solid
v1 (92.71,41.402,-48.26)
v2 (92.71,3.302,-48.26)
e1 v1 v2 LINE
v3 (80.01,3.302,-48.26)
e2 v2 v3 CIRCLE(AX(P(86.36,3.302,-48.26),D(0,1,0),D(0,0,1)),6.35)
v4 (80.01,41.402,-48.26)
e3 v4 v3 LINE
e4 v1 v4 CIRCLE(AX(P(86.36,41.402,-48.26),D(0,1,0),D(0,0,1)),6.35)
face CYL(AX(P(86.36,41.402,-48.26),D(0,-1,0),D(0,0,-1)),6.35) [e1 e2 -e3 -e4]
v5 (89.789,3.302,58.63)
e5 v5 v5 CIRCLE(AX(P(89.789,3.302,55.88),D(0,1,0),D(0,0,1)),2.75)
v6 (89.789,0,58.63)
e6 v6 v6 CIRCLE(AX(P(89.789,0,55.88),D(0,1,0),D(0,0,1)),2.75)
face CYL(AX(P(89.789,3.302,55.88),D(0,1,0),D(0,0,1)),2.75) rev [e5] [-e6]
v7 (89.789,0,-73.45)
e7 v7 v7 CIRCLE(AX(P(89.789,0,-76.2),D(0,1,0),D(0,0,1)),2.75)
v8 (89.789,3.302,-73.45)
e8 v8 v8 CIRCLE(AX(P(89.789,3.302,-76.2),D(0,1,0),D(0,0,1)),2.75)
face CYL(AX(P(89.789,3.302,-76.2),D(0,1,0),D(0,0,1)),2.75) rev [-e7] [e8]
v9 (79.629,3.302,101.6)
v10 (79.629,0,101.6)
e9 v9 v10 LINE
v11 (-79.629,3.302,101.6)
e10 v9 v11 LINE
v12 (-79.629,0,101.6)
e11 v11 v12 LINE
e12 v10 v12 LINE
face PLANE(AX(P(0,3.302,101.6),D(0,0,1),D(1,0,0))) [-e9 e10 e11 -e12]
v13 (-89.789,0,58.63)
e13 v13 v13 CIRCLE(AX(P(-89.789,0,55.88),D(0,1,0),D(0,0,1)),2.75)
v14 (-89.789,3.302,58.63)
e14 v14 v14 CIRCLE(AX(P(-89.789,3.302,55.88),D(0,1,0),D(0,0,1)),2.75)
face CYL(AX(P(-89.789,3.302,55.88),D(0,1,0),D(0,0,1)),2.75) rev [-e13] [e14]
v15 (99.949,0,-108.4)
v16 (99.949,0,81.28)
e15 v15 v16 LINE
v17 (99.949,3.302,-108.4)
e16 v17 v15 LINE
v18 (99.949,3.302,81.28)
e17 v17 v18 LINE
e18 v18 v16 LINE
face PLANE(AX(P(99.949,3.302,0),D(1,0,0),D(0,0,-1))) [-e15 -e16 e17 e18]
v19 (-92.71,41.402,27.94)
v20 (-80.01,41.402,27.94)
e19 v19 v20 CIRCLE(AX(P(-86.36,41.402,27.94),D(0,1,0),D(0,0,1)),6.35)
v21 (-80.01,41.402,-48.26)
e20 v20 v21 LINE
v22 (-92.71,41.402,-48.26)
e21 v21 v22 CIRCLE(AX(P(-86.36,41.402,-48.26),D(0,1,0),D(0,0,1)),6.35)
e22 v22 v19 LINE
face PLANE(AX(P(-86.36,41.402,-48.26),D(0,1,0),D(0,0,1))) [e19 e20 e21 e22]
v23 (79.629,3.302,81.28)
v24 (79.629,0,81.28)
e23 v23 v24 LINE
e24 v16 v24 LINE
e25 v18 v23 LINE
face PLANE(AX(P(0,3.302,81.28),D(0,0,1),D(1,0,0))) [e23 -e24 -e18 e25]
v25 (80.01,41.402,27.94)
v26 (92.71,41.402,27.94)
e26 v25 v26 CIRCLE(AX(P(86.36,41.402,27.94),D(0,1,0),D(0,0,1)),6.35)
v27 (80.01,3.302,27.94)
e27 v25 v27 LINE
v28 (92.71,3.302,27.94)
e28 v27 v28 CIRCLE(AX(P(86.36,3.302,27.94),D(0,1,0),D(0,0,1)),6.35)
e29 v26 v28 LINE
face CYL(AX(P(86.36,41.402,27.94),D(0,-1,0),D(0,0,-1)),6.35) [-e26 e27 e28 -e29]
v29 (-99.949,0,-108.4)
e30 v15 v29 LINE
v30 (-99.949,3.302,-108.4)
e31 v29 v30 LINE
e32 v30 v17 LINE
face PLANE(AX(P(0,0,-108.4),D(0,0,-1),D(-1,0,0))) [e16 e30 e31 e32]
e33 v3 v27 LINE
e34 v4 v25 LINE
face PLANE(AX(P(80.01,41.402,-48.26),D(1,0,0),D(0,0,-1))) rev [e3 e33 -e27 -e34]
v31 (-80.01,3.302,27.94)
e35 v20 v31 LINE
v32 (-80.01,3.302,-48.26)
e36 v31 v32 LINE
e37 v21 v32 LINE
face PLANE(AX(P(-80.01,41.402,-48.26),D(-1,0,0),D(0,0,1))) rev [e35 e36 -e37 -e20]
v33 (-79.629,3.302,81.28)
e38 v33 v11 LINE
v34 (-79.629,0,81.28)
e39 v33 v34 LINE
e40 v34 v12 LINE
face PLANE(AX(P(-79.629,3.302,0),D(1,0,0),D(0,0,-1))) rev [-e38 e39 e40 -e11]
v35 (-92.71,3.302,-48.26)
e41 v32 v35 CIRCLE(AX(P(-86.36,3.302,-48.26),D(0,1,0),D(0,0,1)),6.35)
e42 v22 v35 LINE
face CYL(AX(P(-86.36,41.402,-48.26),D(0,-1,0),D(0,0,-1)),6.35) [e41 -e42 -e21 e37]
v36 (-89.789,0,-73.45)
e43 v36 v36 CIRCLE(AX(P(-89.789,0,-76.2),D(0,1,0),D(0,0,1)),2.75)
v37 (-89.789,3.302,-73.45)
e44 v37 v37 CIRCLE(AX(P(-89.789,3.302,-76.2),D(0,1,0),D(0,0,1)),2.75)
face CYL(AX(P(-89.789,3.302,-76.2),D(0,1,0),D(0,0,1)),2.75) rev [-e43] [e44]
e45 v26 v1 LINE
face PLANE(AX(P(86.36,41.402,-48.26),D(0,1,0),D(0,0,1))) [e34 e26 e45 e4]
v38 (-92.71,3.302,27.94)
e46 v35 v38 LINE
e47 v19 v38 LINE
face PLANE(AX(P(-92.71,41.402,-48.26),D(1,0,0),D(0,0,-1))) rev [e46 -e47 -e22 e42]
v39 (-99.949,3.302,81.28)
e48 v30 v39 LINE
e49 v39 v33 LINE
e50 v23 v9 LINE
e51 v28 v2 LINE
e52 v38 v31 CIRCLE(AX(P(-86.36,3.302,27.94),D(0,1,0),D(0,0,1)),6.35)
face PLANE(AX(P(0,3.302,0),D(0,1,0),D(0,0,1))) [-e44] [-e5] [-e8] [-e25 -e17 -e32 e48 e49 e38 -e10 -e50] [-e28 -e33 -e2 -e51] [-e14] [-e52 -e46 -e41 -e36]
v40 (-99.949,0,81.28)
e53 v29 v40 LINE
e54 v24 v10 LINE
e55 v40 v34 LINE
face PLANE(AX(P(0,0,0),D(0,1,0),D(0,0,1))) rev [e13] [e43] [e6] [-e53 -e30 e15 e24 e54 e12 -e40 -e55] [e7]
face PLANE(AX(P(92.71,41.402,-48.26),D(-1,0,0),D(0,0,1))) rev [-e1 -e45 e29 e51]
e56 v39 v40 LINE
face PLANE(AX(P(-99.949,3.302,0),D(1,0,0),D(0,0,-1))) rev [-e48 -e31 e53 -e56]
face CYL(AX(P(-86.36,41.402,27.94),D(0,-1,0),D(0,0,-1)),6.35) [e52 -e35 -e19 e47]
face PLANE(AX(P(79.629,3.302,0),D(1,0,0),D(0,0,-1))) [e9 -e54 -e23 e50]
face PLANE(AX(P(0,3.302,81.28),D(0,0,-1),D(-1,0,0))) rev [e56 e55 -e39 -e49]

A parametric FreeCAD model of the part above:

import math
import FreeCAD as App
import Part
import Sketcher
from FreeCAD import Vector
Q = App.Units.Quantity

doc = App.newDocument("Part")
params = doc.addObject("Spreadsheet::Sheet", "Params")
for row, (alias, value) in enumerate([
    ("sketch1_width", "0.8 in"),
    ("sketch1_height", "7.2 in"),
    ("sketch1_width2", "7.87 in"),
    ("pad1_length", "0.13 in"),
    ("sketch2_height", "3 in"),
    ("sketch2_radius", "0.25 in"),
    ("pad2_length", "1.5 in"),
    ("hole_diameter", "5.5 mm"),
    ("sketch4_width", "7.87 in"),
    ("sketch4_height", "0.13 in"),
    ("pad3_length", "1.62 mm"),
    ("sketch5_width", "7.87 in"),
    ("sketch5_height", "0.13 in"),
    ("pad4_length", "5.18 mm"),
], start=1):
    params.set(f"A{row}", alias)
    params.set(f"B{row}", "=" + value)
    params.setAlias(f"B{row}", alias)

body = doc.addObject("PartDesign::Body", "Body")

# Sketch on XZ plane
sketch1 = body.newObject("Sketcher::SketchObject", "Sketch")
sketch1.AttachmentSupport = (doc.getObject("XZ_Plane"), [""])
sketch1.MapMode = "FlatFace"
sketch1.addGeometry([
    Part.LineSegment(Vector(100, 81, 0), Vector(100, -102, 0)),  # 0
    Part.LineSegment(Vector(100, -102, 0), Vector(-100, -102, 0)),  # 1
    Part.LineSegment(Vector(-100, -102, 0), Vector(-100, 81, 0)),  # 2
    Part.LineSegment(Vector(-100, 81, 0), Vector(-80, 81, 0)),  # 3
    Part.LineSegment(Vector(-80, 81, 0), Vector(-80, 102, 0)),  # 4
    Part.LineSegment(Vector(-80, 102, 0), Vector(80, 102, 0)),  # 5
    Part.LineSegment(Vector(80, 102, 0), Vector(80, 81, 0)),  # 6
    Part.LineSegment(Vector(80, 81, 0), Vector(100, 81, 0)),  # 7
], False)
sketch1.addConstraint([
    Sketcher.Constraint("Coincident", 0, 2, 1, 1),
    Sketcher.Constraint("Coincident", 1, 2, 2, 1),
    Sketcher.Constraint("Coincident", 2, 2, 3, 1),
    Sketcher.Constraint("Coincident", 3, 2, 4, 1),
    Sketcher.Constraint("Coincident", 4, 2, 5, 1),
    Sketcher.Constraint("Coincident", 5, 2, 6, 1),
    Sketcher.Constraint("Coincident", 6, 2, 7, 1),
    Sketcher.Constraint("Coincident", 7, 2, 0, 1),
    Sketcher.Constraint("Vertical", 0),
    Sketcher.Constraint("Horizontal", 1),
    Sketcher.Constraint("Vertical", 2),
    Sketcher.Constraint("Horizontal", 3),
    Sketcher.Constraint("Vertical", 4),
    Sketcher.Constraint("Horizontal", 5),
    Sketcher.Constraint("Vertical", 6),
    Sketcher.Constraint("Horizontal", 7),
    Sketcher.Constraint("Symmetric", 3, 2, 6, 2, -2),
    Sketcher.Constraint("Equal", 3, 7),
    Sketcher.Constraint("Equal", 7, 4),
    Sketcher.Constraint("DistanceX", 3, 1, 3, 2, Q("0.8 in")),
    Sketcher.Constraint("DistanceY", 0, 2, 0, 1, Q("7.2 in")),
    Sketcher.Constraint("DistanceY", 0, 2, -1, 1, Q("4 in")),
    Sketcher.Constraint("DistanceX", 1, 2, 1, 1, Q("7.87 in")),
])
sketch1.setExpression("Constraints[19]", "Params.sketch1_width")
sketch1.setExpression("Constraints[20]", "Params.sketch1_height")
sketch1.setExpression("Constraints[22]", "Params.sketch1_width2")
pad1 = body.newObject("PartDesign::Pad", "Pad")
pad1.Profile = sketch1
pad1.setExpression("Length", "Params.pad1_length")
pad1.Reversed = True

# Sketch on XZ plane
sketch2 = body.newObject("Sketcher::SketchObject", "Sketch001")
sketch2.AttachmentSupport = (doc.getObject("XZ_Plane"), [""])
sketch2.MapMode = "FlatFace"
sketch2.AttachmentOffset = App.Placement(Vector(0, 0, -0.13 * 25.4), App.Rotation())
sketch2.addGeometry([
    Part.LineSegment(Vector(93, 28, 0), Vector(93, -48, 0)),  # 0
    Part.ArcOfCircle(Part.Circle(Vector(86, -48, 0), Vector(0, 0, 1), 6), math.radians(180), math.radians(360)),  # 1
    Part.LineSegment(Vector(80, -48, 0), Vector(80, 28, 0)),  # 2
    Part.ArcOfCircle(Part.Circle(Vector(86, 28, 0), Vector(0, 0, 1), 6), math.radians(0), math.radians(180)),  # 3
    Part.LineSegment(Vector(-80, 28, 0), Vector(-80, -48, 0)),  # 4
    Part.ArcOfCircle(Part.Circle(Vector(-86, -48, 0), Vector(0, 0, 1), 6), math.radians(180), math.radians(360)),  # 5
    Part.LineSegment(Vector(-93, -48, 0), Vector(-93, 28, 0)),  # 6
    Part.ArcOfCircle(Part.Circle(Vector(-86, 28, 0), Vector(0, 0, 1), 6), math.radians(0), math.radians(180)),  # 7
], False)
sketch2.addConstraint([
    Sketcher.Constraint("Tangent", 0, 2, 1, 2),
    Sketcher.Constraint("Tangent", 1, 1, 2, 1),
    Sketcher.Constraint("Tangent", 2, 2, 3, 2),
    Sketcher.Constraint("Tangent", 3, 1, 0, 1),
    Sketcher.Constraint("Tangent", 4, 2, 5, 2),
    Sketcher.Constraint("Tangent", 5, 1, 6, 1),
    Sketcher.Constraint("Tangent", 6, 2, 7, 2),
    Sketcher.Constraint("Tangent", 7, 1, 4, 1),
    Sketcher.Constraint("Vertical", 0),
    Sketcher.Constraint("Vertical", 2),
    Sketcher.Constraint("Vertical", 4),
    Sketcher.Constraint("Vertical", 6),
    Sketcher.Constraint("Equal", 3, 5),
    Sketcher.Constraint("Symmetric", 1, 3, 5, 3, -2),
    Sketcher.Constraint("Horizontal", 3, 3, 7, 3),
    Sketcher.Constraint("DistanceY", 0, 2, 0, 1, Q("3 in")),
    Sketcher.Constraint("Radius", 1, Q("0.25 in")),
    Sketcher.Constraint("DistanceX", -1, 1, 1, 3, Q("3.4 in")),
    Sketcher.Constraint("DistanceY", 1, 3, -1, 1, Q("1.9 in")),
])
sketch2.setExpression("Constraints[15]", "Params.sketch2_height")
sketch2.setExpression("Constraints[16]", "Params.sketch2_radius")
pad2 = body.newObject("PartDesign::Pad", "Pad001")
pad2.Profile = sketch2
pad2.setExpression("Length", "Params.pad2_length")
pad2.Reversed = True

# Sketch on XZ plane
sketch3 = body.newObject("Sketcher::SketchObject", "Sketch002")
sketch3.AttachmentSupport = (doc.getObject("XZ_Plane"), [""])
sketch3.MapMode = "FlatFace"
sketch3.AttachmentOffset = App.Placement(Vector(0, 0, -0.13 * 25.4), App.Rotation())
sketch3.addGeometry([
    Part.Circle(Vector(-89.8, 55.9, 0), Vector(0, 0, 1), 2.8),
    Part.Circle(Vector(-89.8, -76.2, 0), Vector(0, 0, 1), 2.8),
    Part.Circle(Vector(89.8, 55.9, 0), Vector(0, 0, 1), 2.8),
    Part.Circle(Vector(89.8, -76.2, 0), Vector(0, 0, 1), 2.8),
], False)
sketch3.addConstraint([
    Sketcher.Constraint("Equal", 0, 1),
    Sketcher.Constraint("Equal", 1, 2),
    Sketcher.Constraint("Equal", 2, 3),
    Sketcher.Constraint("Symmetric", 0, 3, 2, 3, -2),
    Sketcher.Constraint("Symmetric", 1, 3, 3, 3, -2),
    Sketcher.Constraint("Vertical", 0, 3, 1, 3),
    Sketcher.Constraint("DistanceY", 1, 3, -1, 1, Q("3 in")),
    Sketcher.Constraint("DistanceY", -1, 1, 0, 3, Q("2.2 in")),
    Sketcher.Constraint("Diameter", 0, 5.5),
    Sketcher.Constraint("DistanceX", 0, 3, 2, 3, Q("7.07 in")),
])
doc.recompute()
hole = body.newObject("PartDesign::Hole", "Hole")
hole.Profile = sketch3
hole.ThreadType = "None"
hole.setExpression("Diameter", "Params.hole_diameter")
hole.DepthType = "ThroughAll"
hole.Reversed = True

# Sketch on XY plane
sketch4 = body.newObject("Sketcher::SketchObject", "Sketch003")
sketch4.AttachmentSupport = (doc.getObject("XY_Plane"), [""])
sketch4.MapMode = "FlatFace"
sketch4.AttachmentOffset = App.Placement(Vector(0, 0, -4 * 25.4), App.Rotation())
sketch4.addGeometry([
    Part.LineSegment(Vector(99.9, 3.3, 0), Vector(99.9, 0, 0)),
    Part.LineSegment(Vector(99.9, 0, 0), Vector(-99.9, 0, 0)),
    Part.LineSegment(Vector(-99.9, 0, 0), Vector(-99.9, 3.3, 0)),
    Part.LineSegment(Vector(-99.9, 3.3, 0), Vector(99.9, 3.3, 0)),
], False)
sketch4.addConstraint([
    Sketcher.Constraint("Coincident", 0, 2, 1, 1),
    Sketcher.Constraint("Coincident", 1, 2, 2, 1),
    Sketcher.Constraint("Coincident", 2, 2, 3, 1),
    Sketcher.Constraint("Coincident", 3, 2, 0, 1),
    Sketcher.Constraint("Vertical", 0),
    Sketcher.Constraint("Horizontal", 1),
    Sketcher.Constraint("Vertical", 2),
    Sketcher.Constraint("Horizontal", 3),
    Sketcher.Constraint("Symmetric", 0, 2, 1, 2, -1, 1),
    Sketcher.Constraint("DistanceX", 1, 2, 1, 1, Q("7.87 in")),
    Sketcher.Constraint("DistanceY", 0, 2, 0, 1, Q("0.13 in")),
])
sketch4.setExpression("Constraints[9]", "Params.sketch4_width")
sketch4.setExpression("Constraints[10]", "Params.sketch4_height")
pad3 = body.newObject("PartDesign::Pad", "Pad002")
pad3.Profile = sketch4
pad3.setExpression("Length", "Params.pad3_length")
pad3.Reversed = True

# Sketch on XY plane
sketch5 = body.newObject("Sketcher::SketchObject", "Sketch004")
sketch5.AttachmentSupport = (doc.getObject("XY_Plane"), [""])
sketch5.MapMode = "FlatFace"
sketch5.AttachmentOffset = App.Placement(Vector(0, 0, -103.22), App.Rotation())
sketch5.addGeometry([
    Part.LineSegment(Vector(99.9, 3.3, 0), Vector(99.9, 0, 0)),
    Part.LineSegment(Vector(99.9, 0, 0), Vector(-99.9, 0, 0)),
    Part.LineSegment(Vector(-99.9, 0, 0), Vector(-99.9, 3.3, 0)),
    Part.LineSegment(Vector(-99.9, 3.3, 0), Vector(99.9, 3.3, 0)),
], False)
sketch5.addConstraint([
    Sketcher.Constraint("Coincident", 0, 2, 1, 1),
    Sketcher.Constraint("Coincident", 1, 2, 2, 1),
    Sketcher.Constraint("Coincident", 2, 2, 3, 1),
    Sketcher.Constraint("Coincident", 3, 2, 0, 1),
    Sketcher.Constraint("Vertical", 0),
    Sketcher.Constraint("Horizontal", 1),
    Sketcher.Constraint("Vertical", 2),
    Sketcher.Constraint("Horizontal", 3),
    Sketcher.Constraint("Symmetric", 0, 2, 1, 2, -1, 1),
    Sketcher.Constraint("DistanceX", 1, 2, 1, 1, Q("7.87 in")),
    Sketcher.Constraint("DistanceY", 0, 2, 0, 1, Q("0.13 in")),
])
sketch5.setExpression("Constraints[9]", "Params.sketch5_width")
sketch5.setExpression("Constraints[10]", "Params.sketch5_height")
pad4 = body.newObject("PartDesign::Pad", "Pad003")
pad4.Profile = sketch5
pad4.setExpression("Length", "Params.pad4_length")
pad4.Reversed = True

doc.recompute()
